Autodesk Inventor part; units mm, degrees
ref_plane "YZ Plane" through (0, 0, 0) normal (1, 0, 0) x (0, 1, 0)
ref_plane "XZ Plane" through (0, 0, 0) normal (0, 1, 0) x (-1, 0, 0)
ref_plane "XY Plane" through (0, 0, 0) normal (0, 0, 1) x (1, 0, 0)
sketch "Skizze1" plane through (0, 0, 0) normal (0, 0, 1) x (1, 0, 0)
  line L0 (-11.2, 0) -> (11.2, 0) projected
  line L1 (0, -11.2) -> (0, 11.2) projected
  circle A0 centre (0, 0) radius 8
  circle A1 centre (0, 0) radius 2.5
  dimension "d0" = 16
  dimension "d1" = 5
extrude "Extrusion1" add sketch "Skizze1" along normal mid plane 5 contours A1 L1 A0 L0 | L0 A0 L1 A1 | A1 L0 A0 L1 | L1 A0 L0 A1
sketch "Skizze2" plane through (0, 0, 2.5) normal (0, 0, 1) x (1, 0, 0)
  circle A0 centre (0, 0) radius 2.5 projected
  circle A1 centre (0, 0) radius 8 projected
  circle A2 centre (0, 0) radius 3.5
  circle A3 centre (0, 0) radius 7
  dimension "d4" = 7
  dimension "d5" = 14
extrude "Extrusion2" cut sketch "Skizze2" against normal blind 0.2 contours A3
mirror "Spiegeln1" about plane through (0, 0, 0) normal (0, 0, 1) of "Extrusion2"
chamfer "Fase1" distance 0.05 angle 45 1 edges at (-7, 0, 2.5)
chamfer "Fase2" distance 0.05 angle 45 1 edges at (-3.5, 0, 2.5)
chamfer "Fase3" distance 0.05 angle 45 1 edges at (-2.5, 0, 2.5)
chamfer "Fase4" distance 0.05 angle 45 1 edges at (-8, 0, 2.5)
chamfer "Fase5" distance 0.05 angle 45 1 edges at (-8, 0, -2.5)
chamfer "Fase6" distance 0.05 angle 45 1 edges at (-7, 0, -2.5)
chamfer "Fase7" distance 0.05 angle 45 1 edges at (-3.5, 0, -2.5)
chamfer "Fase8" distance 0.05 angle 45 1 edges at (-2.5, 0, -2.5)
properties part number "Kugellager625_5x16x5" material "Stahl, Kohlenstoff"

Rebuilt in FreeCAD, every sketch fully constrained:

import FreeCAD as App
import Part
import Sketcher
from FreeCAD import Vector
Q = App.Units.Quantity


def edges_at(feature, points):
    """Names of the edges that pass closest to the given points."""
    edges = feature.Shape.Edges
    near = lambda p: min(range(len(edges)), key=lambda i: edges[i].distToShape(Part.Vertex(*p))[0])
    return sorted({f"Edge{near(p) + 1}" for p in points})

doc = App.newDocument("Part")
body = doc.addObject("PartDesign::Body", "Body")

# Sketch on XY plane
sketch1 = body.newObject("Sketcher::SketchObject", "Sketch")
sketch1.AttachmentSupport = (doc.getObject("XY_Plane"), [""])
sketch1.MapMode = "FlatFace"
sketch1.addGeometry([
    Part.Circle(Vector(0, 0, 0), Vector(0, 0, 1), 8),
    Part.Circle(Vector(0, 0, 0), Vector(0, 0, 1), 2.5),
], False)
sketch1.addConstraint([
    Sketcher.Constraint("Coincident", 0, 3, -1, 1),
    Sketcher.Constraint("Coincident", 1, 3, -1, 1),
    Sketcher.Constraint("Diameter", 0, Q("16 mm")),
    Sketcher.Constraint("Diameter", 1, Q("5 mm")),
])
pad1 = body.newObject("PartDesign::Pad", "Pad")
pad1.Profile = sketch1
pad1.Length = 5
pad1.Midplane = True

# Sketch on XY plane
sketch2 = body.newObject("Sketcher::SketchObject", "Sketch001")
sketch2.AttachmentSupport = (doc.getObject("XY_Plane"), [""])
sketch2.MapMode = "FlatFace"
sketch2.AttachmentOffset = App.Placement(Vector(0, 0, 2.5), App.Rotation())
sketch2.addGeometry([
    Part.Circle(Vector(0, 0, 0), Vector(0, 0, 1), 7),
    Part.Circle(Vector(0, 0, 0), Vector(0, 0, 1), 3.5),
], False)
sketch2.addConstraint([
    Sketcher.Constraint("Coincident", 0, 3, -1, 1),
    Sketcher.Constraint("Coincident", 1, 3, -1, 1),
    Sketcher.Constraint("Diameter", 0, Q("14 mm")),
    Sketcher.Constraint("Diameter", 1, Q("7 mm")),
])
pocket1 = body.newObject("PartDesign::Pocket", "Pocket")
pocket1.Profile = sketch2
pocket1.Length = 0.2
doc.recompute()

mirrored = body.newObject("PartDesign::Mirrored", "Mirrored")
mirrored.Originals = [pocket1]
mirrored.MirrorPlane = (doc.getObject("XY_Plane"), [""])
body.Tip = mirrored
doc.recompute()

chamfer = body.newObject("PartDesign::Chamfer", "Chamfer")
chamfer.Base = (mirrored, edges_at(mirrored, [(-7, 0, 2.5)]))
chamfer.Size = 0.05
doc.recompute()

chamfer2 = body.newObject("PartDesign::Chamfer", "Chamfer001")
chamfer2.Base = (chamfer, edges_at(chamfer, [(-3.5, 0, 2.5)]))
chamfer2.Size = 0.05
doc.recompute()

chamfer3 = body.newObject("PartDesign::Chamfer", "Chamfer002")
chamfer3.Base = (chamfer2, edges_at(chamfer2, [(-2.5, 0, 2.5)]))
chamfer3.Size = 0.05
doc.recompute()

chamfer4 = body.newObject("PartDesign::Chamfer", "Chamfer003")
chamfer4.Base = (chamfer3, edges_at(chamfer3, [(-8, 0, 2.5)]))
chamfer4.Size = 0.05
doc.recompute()

chamfer5 = body.newObject("PartDesign::Chamfer", "Chamfer004")
chamfer5.Base = (chamfer4, edges_at(chamfer4, [(-8, 0, -2.5)]))
chamfer5.Size = 0.05
doc.recompute()

chamfer6 = body.newObject("PartDesign::Chamfer", "Chamfer005")
chamfer6.Base = (chamfer5, edges_at(chamfer5, [(-7, 0, -2.5)]))
chamfer6.Size = 0.05
doc.recompute()

chamfer7 = body.newObject("PartDesign::Chamfer", "Chamfer006")
chamfer7.Base = (chamfer6, edges_at(chamfer6, [(-3.5, 0, -2.5)]))
chamfer7.Size = 0.05
doc.recompute()

chamfer8 = body.newObject("PartDesign::Chamfer", "Chamfer007")
chamfer8.Base = (chamfer7, edges_at(chamfer7, [(-2.5, 0, -2.5)]))
chamfer8.Size = 0.05

doc.recompute()
